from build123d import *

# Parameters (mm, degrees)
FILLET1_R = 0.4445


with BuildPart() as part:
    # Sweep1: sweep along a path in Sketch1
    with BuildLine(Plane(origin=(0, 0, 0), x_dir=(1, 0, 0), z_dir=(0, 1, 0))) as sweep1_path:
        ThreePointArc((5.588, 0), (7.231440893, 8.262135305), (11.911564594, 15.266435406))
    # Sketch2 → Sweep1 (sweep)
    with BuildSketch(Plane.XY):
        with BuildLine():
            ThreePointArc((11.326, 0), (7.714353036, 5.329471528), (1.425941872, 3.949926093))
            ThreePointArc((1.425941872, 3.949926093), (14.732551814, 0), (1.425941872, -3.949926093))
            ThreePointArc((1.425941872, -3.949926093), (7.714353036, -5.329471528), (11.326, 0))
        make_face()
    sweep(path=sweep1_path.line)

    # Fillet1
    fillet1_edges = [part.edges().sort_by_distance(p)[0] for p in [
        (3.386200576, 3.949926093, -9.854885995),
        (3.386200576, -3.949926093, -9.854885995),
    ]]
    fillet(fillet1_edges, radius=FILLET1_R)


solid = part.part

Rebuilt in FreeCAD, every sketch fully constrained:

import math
import FreeCAD as App
import Part
import Sketcher
Q = App.Units.Quantity


def edges_at(feature, points):
    """Names of the edges that pass closest to the given points."""
    edges = feature.Shape.Edges
    near = lambda p: min(range(len(edges)), key=lambda i: edges[i].distToShape(Part.Vertex(*p))[0])
    return sorted({f"Edge{near(p) + 1}" for p in points})

doc = App.newDocument("Part")
body = doc.addObject("PartDesign::Body", "Body")

# Sketch on XY plane
sketch1 = body.newObject("Sketcher::SketchObject", "Sketch")
sketch1.AttachmentSupport = (doc.getObject("XY_Plane"), [""])
sketch1.MapMode = "FlatFace"
sketch1.addGeometry([
    Part.ArcOfCircle(Part.Circle(App.Vector(6, 0, 0), App.Vector(0, 0, 1), 6), math.radians(0), math.radians(136)),
    Part.ArcOfCircle(Part.Circle(App.Vector(6, 0, 0), App.Vector(0, 0, 1), 6), math.radians(-136), math.radians(0)),
    Part.ArcOfCircle(Part.Circle(App.Vector(7, 0, 0), App.Vector(0, 0, 1), 7), math.radians(-147), math.radians(147)),
], False)
sketch1.addConstraint([
    Sketcher.Constraint("Tangent", 0, 1, 1, 2),
    Sketcher.Constraint("Coincident", 1, 1, 2, 1),
    Sketcher.Constraint("Coincident", 2, 2, 0, 2),
    Sketcher.Constraint("Equal", 0, 1),
    Sketcher.Constraint("Symmetric", 1, 1, 2, 2, -1),
    Sketcher.Constraint("PointOnObject", 0, 1, -1),
    Sketcher.Constraint("DistanceX", -1, 1, 0, 3, Q("0.22 in")),
    Sketcher.Constraint("Radius", 0, 5.738),
    Sketcher.Constraint("DistanceX", -1, 1, 2, 3, Q("0.295 in")),
    Sketcher.Constraint("Radius", 2, 7.239552),
])

# Sketch on XZ plane
sketch2 = body.newObject("Sketcher::SketchObject", "Sketch001")
sketch2.AttachmentSupport = (doc.getObject("XZ_Plane"), [""])
sketch2.MapMode = "FlatFace"
sketch2.addGeometry(Part.ArcOfCircle(Part.Circle(App.Vector(27, 0, 0), App.Vector(0, 0, 1), 22), math.radians(180), math.radians(225)), False)
sketch2.addConstraint([
    Sketcher.Constraint("PointOnObject", 0, 3, -1),
    Sketcher.Constraint("PointOnObject", 0, 1, -1),
    Sketcher.Constraint("Radius", 0, Q("0.85 in")),
    Sketcher.Constraint("DistanceX", -1, 1, 0, 3, Q("1.07 in")),
    Sketcher.Constraint("DistanceX", -1, 1, 0, 2, 11.911565),
])
doc.recompute()

additivepipe = body.newObject("PartDesign::AdditivePipe", "AdditivePipe")
additivepipe.Profile = sketch1
additivepipe.Spine = (sketch2, ["Edge1"])
doc.recompute()

fillet = body.newObject("PartDesign::Fillet", "Fillet")
fillet.Base = (additivepipe, edges_at(additivepipe, [(3.386, 3.95, -9.855), (3.386, -3.95, -9.855)]))
fillet.Radius = Q("0.0175 in")

doc.recompute()
